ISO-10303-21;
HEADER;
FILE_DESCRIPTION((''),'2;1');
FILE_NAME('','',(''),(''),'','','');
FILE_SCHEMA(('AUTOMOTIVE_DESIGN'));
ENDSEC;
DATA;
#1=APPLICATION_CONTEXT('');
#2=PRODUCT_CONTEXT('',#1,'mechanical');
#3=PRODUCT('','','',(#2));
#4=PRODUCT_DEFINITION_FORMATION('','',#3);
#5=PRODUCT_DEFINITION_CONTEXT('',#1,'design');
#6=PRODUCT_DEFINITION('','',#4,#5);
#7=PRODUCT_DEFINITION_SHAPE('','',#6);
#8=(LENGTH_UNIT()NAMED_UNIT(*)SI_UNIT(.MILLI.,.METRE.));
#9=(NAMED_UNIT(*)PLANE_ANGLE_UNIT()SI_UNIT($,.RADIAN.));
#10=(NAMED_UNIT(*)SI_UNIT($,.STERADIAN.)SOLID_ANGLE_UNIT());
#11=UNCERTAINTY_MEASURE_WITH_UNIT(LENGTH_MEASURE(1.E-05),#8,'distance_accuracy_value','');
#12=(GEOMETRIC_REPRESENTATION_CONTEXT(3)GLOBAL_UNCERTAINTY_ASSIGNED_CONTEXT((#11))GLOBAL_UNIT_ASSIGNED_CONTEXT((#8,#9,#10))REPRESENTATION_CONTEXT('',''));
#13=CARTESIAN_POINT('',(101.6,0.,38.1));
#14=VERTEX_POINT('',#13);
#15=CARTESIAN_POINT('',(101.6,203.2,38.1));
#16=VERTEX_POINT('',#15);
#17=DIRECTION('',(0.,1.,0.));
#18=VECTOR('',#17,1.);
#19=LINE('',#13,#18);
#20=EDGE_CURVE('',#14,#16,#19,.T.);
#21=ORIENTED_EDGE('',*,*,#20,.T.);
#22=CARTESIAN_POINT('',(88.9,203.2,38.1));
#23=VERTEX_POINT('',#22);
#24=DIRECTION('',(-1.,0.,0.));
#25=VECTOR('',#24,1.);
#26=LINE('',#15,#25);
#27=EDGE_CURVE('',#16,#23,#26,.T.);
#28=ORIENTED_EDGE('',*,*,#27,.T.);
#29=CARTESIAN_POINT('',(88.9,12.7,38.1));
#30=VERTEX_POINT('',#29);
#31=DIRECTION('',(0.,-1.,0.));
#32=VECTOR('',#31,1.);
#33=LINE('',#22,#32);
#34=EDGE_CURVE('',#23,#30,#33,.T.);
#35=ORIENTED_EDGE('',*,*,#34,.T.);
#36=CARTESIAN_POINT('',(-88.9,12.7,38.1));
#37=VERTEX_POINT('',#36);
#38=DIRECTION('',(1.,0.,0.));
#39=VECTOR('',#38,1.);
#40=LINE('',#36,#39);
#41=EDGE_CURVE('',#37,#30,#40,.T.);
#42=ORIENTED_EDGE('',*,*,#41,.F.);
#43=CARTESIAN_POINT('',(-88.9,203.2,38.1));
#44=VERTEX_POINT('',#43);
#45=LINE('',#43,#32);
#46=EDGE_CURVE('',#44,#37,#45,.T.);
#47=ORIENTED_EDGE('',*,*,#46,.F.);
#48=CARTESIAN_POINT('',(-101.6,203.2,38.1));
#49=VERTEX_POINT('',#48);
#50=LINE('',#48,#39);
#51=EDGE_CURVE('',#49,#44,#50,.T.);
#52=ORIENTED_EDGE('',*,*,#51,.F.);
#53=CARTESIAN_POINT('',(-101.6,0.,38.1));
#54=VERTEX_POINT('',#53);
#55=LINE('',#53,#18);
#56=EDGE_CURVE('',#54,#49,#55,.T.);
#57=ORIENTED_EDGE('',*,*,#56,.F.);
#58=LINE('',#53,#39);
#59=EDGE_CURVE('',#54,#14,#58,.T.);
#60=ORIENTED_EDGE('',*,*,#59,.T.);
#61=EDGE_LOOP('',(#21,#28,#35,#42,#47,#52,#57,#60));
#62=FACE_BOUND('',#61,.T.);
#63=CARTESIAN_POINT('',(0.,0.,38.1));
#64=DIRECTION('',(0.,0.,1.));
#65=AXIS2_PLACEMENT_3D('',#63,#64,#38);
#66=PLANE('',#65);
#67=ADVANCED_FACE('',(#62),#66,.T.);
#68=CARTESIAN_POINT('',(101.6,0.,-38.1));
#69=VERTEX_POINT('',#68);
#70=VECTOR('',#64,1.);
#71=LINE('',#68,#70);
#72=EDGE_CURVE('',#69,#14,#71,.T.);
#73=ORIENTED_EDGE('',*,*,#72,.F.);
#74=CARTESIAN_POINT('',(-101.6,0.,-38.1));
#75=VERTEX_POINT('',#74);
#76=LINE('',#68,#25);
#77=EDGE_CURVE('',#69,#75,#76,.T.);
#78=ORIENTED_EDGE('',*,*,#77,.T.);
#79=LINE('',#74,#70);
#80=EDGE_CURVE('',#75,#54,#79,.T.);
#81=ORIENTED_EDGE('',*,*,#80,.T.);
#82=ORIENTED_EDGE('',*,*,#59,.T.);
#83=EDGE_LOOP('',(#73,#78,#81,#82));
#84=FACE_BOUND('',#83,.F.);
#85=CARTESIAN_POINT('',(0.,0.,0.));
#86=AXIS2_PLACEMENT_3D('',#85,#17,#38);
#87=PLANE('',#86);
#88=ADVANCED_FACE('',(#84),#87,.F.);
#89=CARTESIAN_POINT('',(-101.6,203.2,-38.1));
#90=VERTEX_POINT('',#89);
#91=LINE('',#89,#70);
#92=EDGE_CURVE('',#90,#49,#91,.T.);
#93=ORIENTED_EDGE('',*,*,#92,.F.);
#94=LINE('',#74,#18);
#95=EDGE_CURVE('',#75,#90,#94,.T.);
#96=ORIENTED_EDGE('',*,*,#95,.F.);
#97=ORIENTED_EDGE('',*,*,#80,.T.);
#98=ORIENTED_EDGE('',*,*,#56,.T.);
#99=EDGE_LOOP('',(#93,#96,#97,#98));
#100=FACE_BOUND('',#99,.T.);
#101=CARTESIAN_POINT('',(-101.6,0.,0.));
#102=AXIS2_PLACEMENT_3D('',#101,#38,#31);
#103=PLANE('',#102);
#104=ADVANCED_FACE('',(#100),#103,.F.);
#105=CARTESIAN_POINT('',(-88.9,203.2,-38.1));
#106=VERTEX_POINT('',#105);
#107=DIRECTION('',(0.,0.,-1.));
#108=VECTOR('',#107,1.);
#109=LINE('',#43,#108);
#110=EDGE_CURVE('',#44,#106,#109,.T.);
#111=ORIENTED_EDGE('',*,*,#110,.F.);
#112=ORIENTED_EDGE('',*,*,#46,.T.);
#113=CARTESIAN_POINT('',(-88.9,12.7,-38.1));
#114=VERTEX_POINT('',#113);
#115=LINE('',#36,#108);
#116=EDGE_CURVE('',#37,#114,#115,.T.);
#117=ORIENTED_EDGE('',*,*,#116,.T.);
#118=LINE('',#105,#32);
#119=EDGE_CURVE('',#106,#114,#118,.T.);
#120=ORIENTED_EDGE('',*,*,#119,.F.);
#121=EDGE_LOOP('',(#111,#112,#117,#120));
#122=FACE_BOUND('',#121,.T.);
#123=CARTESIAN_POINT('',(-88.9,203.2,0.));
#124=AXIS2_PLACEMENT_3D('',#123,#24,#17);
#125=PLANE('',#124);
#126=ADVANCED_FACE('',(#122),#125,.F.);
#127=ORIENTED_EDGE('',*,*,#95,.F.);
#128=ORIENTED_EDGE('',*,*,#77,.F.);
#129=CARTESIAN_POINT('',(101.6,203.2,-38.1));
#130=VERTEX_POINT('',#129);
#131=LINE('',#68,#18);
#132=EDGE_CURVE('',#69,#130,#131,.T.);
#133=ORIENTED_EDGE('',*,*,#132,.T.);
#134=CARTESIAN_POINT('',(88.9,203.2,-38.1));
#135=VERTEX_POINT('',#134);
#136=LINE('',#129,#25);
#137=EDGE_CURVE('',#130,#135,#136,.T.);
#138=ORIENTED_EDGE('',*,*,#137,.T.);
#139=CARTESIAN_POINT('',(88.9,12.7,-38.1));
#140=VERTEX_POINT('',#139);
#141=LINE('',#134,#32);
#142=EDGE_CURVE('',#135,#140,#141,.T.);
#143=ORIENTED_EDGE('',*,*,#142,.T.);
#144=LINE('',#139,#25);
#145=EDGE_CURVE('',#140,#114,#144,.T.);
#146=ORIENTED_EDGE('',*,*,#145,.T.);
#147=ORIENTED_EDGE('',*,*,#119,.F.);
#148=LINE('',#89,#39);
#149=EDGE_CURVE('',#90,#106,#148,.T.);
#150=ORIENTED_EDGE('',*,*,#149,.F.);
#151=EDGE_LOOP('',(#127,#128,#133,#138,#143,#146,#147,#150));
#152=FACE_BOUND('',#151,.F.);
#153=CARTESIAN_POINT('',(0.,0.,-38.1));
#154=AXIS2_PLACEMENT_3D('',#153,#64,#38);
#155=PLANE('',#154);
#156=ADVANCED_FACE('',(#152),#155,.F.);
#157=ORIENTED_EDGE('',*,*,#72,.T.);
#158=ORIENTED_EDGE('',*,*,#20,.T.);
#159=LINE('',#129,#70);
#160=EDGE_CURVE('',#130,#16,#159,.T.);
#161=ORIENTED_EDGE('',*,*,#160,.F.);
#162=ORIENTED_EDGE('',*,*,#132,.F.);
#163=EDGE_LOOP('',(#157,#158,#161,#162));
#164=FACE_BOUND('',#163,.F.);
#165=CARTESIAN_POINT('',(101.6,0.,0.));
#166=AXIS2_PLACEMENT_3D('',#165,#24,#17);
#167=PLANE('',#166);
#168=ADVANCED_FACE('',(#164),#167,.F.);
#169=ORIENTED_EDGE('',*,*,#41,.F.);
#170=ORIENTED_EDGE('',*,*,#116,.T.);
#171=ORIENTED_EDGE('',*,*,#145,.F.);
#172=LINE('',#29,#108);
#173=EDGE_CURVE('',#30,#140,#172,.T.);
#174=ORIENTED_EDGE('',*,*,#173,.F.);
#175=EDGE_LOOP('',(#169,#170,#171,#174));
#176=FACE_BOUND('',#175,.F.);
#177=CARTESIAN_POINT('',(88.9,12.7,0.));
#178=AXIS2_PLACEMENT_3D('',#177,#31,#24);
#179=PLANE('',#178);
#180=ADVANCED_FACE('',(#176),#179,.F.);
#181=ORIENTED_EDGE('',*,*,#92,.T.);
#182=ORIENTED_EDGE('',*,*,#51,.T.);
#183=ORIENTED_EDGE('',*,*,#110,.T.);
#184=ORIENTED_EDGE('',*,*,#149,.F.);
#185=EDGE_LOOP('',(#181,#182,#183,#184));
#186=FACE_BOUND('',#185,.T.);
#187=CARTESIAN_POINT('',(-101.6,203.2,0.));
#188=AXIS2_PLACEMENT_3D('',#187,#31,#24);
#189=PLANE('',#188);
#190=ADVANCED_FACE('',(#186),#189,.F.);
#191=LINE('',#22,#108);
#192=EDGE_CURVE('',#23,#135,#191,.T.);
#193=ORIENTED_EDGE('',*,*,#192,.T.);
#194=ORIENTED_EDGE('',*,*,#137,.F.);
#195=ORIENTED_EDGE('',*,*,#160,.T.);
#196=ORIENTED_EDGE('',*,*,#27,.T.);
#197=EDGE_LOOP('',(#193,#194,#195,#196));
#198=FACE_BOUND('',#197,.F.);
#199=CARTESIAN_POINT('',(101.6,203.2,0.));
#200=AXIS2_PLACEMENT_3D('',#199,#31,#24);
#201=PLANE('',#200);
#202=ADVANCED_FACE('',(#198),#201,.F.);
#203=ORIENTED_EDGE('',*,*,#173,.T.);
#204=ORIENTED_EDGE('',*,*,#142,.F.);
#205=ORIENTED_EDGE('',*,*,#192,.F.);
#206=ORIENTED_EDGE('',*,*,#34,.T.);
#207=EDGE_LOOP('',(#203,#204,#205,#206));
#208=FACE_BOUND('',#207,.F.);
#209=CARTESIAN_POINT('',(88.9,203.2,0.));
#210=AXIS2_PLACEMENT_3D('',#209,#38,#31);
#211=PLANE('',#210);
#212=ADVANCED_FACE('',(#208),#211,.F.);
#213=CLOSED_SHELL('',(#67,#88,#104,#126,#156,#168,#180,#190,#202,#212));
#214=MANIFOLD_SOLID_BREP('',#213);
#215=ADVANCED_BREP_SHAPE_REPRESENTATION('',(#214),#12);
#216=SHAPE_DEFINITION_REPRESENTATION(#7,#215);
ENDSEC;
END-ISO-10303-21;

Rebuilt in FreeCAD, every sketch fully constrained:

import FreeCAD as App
import Part
import Sketcher

V = App.Vector
Q = App.Units.Quantity


def add_polygon(sketch, points):
    """Adds a closed chain of lines whose ends are joined by coincident constraints."""
    first, n = sketch.GeometryCount, len(points)
    for a, b in zip(points, points[1:] + points[:1]):
        sketch.addGeometry(Part.LineSegment(App.Vector(*a, 0), App.Vector(*b, 0)), False)
    for i in range(n):
        sketch.addConstraint(Sketcher.Constraint("Coincident", first + i, 2, first + (i + 1) % n, 1))

doc = App.newDocument("Part")
params = doc.addObject("Spreadsheet::Sheet", "Params")
for row, (alias, value) in enumerate([
    ("sketch1_height", "8 in"),
    ("sketch1_width", "0.5 in"),
    ("sketch1_width2", "3.5 in"),
    ("pad1_length", "3 in"),
], start=1):
    params.set(f"A{row}", alias)
    params.set(f"B{row}", "=" + value)
    params.setAlias(f"B{row}", alias)

body = doc.addObject("PartDesign::Body", "Body")

sketch1 = body.newObject("Sketcher::SketchObject", "Sketch")
sketch1.AttachmentSupport = (doc.getObject("XY_Plane"), [""])
sketch1.MapMode = "FlatFace"
add_polygon(sketch1, [(0, 13), (0, 0), (102, 0), (102, 203), (89, 203), (89, 13)])
sketch1.addConstraint([
    Sketcher.Constraint("Vertical", 0),
    Sketcher.Constraint("Horizontal", 1),
    Sketcher.Constraint("Vertical", 2),
    Sketcher.Constraint("Horizontal", 3),
    Sketcher.Constraint("Vertical", 4),
    Sketcher.Constraint("Horizontal", 5),
    Sketcher.Constraint("Coincident", 0, 2, -1, 1),
    Sketcher.Constraint("Equal", 3, 0),
    Sketcher.Constraint("DistanceY", 2, 1, 2, 2, Q("8 in")),
    Sketcher.Constraint("DistanceX", 3, 2, 3, 1, Q("0.5 in")),
    Sketcher.Constraint("DistanceX", 5, 2, 5, 1, Q("3.5 in")),
])
sketch1.setExpression("Constraints[14]", "Params.sketch1_height")
sketch1.setExpression("Constraints[15]", "Params.sketch1_width")
sketch1.setExpression("Constraints[16]", "Params.sketch1_width2")
pad1 = body.newObject("PartDesign::Pad", "Pad")
pad1.Profile = sketch1
pad1.setExpression("Length", "Params.pad1_length")
pad1.Midplane = True
doc.recompute()

mirrored = body.newObject("PartDesign::Mirrored", "Mirrored")
mirrored.Originals = [pad1]
mirrored.MirrorPlane = (doc.getObject("YZ_Plane"), [""])
body.Tip = mirrored

doc.recompute()
